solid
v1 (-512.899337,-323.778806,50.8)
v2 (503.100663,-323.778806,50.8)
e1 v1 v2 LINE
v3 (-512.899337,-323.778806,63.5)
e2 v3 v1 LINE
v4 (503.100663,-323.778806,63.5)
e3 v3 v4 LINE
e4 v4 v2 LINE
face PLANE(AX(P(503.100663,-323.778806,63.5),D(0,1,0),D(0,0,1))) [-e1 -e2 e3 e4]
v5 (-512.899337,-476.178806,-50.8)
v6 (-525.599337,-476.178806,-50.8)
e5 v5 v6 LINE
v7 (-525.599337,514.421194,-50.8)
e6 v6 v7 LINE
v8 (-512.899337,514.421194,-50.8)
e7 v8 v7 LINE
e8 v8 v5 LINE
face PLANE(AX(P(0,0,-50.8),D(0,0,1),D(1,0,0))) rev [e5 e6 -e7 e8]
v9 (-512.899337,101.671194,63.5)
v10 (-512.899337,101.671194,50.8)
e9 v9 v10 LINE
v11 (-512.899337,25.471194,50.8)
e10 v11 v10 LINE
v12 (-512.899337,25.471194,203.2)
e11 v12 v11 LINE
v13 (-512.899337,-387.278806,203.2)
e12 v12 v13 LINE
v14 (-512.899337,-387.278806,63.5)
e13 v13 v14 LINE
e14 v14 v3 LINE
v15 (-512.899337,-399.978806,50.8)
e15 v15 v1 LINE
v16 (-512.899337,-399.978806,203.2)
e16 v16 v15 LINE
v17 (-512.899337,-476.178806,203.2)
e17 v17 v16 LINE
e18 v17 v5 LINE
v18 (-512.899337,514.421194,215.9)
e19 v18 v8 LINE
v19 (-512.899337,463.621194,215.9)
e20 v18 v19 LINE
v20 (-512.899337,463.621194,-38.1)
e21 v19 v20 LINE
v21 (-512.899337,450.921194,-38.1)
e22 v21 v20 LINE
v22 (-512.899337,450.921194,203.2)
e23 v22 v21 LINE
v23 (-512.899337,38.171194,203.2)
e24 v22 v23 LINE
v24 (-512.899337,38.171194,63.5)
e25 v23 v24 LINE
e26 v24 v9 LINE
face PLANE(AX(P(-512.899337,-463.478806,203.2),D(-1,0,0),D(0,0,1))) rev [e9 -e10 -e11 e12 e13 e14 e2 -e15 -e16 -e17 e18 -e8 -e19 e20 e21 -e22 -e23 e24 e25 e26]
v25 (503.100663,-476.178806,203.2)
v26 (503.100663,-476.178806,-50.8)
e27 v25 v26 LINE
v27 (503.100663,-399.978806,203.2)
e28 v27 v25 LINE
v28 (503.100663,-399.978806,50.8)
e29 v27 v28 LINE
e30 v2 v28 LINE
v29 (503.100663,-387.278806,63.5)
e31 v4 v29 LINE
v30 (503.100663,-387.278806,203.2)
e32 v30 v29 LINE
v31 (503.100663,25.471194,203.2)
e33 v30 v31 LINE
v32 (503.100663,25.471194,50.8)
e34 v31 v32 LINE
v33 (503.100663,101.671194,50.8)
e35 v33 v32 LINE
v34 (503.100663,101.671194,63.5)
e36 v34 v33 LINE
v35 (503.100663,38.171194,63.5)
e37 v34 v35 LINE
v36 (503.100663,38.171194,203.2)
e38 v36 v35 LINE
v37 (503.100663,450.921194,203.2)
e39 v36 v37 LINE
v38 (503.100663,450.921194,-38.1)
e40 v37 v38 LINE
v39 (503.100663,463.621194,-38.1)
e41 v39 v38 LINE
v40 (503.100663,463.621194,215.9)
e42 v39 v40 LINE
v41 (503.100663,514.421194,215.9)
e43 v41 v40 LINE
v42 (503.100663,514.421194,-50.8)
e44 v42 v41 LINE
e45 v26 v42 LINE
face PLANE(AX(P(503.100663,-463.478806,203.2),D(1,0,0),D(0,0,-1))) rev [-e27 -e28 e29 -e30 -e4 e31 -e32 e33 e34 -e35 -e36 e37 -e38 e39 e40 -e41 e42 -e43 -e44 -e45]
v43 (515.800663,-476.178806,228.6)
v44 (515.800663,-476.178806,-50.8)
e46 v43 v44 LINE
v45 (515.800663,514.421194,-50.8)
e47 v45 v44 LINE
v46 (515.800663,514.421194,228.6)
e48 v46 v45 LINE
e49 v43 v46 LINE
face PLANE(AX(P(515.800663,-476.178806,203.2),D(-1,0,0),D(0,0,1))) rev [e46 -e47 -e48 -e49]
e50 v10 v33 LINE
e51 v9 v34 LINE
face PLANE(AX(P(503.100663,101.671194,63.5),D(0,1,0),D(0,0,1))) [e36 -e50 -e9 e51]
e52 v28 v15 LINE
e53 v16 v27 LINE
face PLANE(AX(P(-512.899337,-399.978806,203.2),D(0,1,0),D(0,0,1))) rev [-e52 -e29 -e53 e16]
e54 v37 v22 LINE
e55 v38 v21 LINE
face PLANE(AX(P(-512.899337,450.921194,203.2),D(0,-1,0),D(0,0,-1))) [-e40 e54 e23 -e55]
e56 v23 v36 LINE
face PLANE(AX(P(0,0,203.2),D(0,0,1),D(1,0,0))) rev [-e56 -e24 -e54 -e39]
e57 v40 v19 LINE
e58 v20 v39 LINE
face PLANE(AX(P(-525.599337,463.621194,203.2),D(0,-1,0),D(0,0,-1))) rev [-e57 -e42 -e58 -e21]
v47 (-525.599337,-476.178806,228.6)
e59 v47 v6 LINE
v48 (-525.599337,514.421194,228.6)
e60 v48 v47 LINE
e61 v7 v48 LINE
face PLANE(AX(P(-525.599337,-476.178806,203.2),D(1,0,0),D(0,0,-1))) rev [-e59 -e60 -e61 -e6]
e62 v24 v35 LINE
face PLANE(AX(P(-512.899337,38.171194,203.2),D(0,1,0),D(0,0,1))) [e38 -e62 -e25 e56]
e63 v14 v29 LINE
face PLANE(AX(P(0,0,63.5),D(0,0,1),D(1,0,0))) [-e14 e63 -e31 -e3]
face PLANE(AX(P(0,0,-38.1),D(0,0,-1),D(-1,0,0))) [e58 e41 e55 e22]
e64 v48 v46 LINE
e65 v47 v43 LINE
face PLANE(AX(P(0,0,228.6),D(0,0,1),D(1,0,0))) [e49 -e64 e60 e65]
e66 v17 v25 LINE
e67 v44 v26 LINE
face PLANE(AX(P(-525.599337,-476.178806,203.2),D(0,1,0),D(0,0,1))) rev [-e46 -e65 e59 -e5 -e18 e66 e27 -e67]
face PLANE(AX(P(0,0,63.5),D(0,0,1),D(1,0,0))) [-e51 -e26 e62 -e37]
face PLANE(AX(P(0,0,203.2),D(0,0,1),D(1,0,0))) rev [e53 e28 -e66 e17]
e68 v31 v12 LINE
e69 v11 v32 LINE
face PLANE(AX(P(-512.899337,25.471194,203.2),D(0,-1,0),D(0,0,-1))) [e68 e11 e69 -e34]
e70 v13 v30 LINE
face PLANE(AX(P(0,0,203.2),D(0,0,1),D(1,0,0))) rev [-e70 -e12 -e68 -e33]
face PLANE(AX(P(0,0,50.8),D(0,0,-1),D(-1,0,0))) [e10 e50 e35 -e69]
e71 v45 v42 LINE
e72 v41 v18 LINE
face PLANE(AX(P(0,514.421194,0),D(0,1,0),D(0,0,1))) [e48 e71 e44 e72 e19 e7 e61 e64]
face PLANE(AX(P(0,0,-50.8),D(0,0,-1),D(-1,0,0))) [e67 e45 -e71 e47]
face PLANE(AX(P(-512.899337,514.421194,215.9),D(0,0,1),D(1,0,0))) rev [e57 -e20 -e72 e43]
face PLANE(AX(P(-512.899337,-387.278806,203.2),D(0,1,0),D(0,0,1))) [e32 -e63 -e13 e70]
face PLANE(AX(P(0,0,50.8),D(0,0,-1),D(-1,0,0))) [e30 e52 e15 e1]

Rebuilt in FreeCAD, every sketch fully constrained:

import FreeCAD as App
import Part
import Sketcher

V = App.Vector
Q = App.Units.Quantity

doc = App.newDocument("Part")
body = doc.addObject("PartDesign::Body", "Body")

# Sketch on XY plane
sketch1 = body.newObject("Sketcher::SketchObject", "Sketch")
sketch1.AttachmentSupport = (doc.getObject("XY_Plane"), [""])
sketch1.MapMode = "FlatFace"
sketch1.addGeometry([
    Part.LineSegment(V(-513, -400, 0), V(503, -400, 0)),  # 0
    Part.LineSegment(V(503, -400, 0), V(503, -476, 0)),  # 1
    Part.LineSegment(V(503, -476, 0), V(516, -476, 0)),  # 2
    Part.LineSegment(V(516, -476, 0), V(516, 464, 0)),  # 3
    Part.LineSegment(V(516, 464, 0), V(-526, 464, 0)),  # 4
    Part.LineSegment(V(-526, 464, 0), V(-526, -476, 0)),  # 5
    Part.LineSegment(V(-526, -476, 0), V(-513, -476, 0)),  # 6
    Part.LineSegment(V(-513, -476, 0), V(-513, -400, 0)),  # 7
    Part.LineSegment(V(503, -387, 0), V(-513, -387, 0)),  # 8
    Part.LineSegment(V(-513, -387, 0), V(-513, 25, 0)),  # 9
    Part.LineSegment(V(-513, 25, 0), V(503, 25, 0)),  # 10
    Part.LineSegment(V(503, 25, 0), V(503, -387, 0)),  # 11
    Part.LineSegment(V(503, 38, 0), V(-513, 38, 0)),  # 12
    Part.LineSegment(V(-513, 38, 0), V(-513, 451, 0)),  # 13
    Part.LineSegment(V(-513, 451, 0), V(503, 451, 0)),  # 14
    Part.LineSegment(V(503, 451, 0), V(503, 38, 0)),  # 15
], False)
sketch1.addConstraint([
    Sketcher.Constraint("Coincident", 0, 2, 1, 1),
    Sketcher.Constraint("Coincident", 1, 2, 2, 1),
    Sketcher.Constraint("Coincident", 2, 2, 3, 1),
    Sketcher.Constraint("Coincident", 3, 2, 4, 1),
    Sketcher.Constraint("Coincident", 4, 2, 5, 1),
    Sketcher.Constraint("Coincident", 5, 2, 6, 1),
    Sketcher.Constraint("Coincident", 6, 2, 7, 1),
    Sketcher.Constraint("Coincident", 7, 2, 0, 1),
    Sketcher.Constraint("Coincident", 8, 2, 9, 1),
    Sketcher.Constraint("Coincident", 9, 2, 10, 1),
    Sketcher.Constraint("Coincident", 10, 2, 11, 1),
    Sketcher.Constraint("Coincident", 11, 2, 8, 1),
    Sketcher.Constraint("Coincident", 12, 2, 13, 1),
    Sketcher.Constraint("Coincident", 13, 2, 14, 1),
    Sketcher.Constraint("Coincident", 14, 2, 15, 1),
    Sketcher.Constraint("Coincident", 15, 2, 12, 1),
    Sketcher.Constraint("Horizontal", 0),
    Sketcher.Constraint("Vertical", 1),
    Sketcher.Constraint("Horizontal", 2),
    Sketcher.Constraint("Vertical", 3),
    Sketcher.Constraint("Horizontal", 4),
    Sketcher.Constraint("Vertical", 5),
    Sketcher.Constraint("Horizontal", 6),
    Sketcher.Constraint("Vertical", 7),
    Sketcher.Constraint("Horizontal", 8),
    Sketcher.Constraint("Vertical", 9),
    Sketcher.Constraint("Horizontal", 10),
    Sketcher.Constraint("Vertical", 11),
    Sketcher.Constraint("Horizontal", 12),
    Sketcher.Constraint("Vertical", 13),
    Sketcher.Constraint("Horizontal", 14),
    Sketcher.Constraint("Vertical", 15),
    Sketcher.Constraint("Horizontal", 2, 2, 5, 2),
    Sketcher.Constraint("Vertical", 7, 2, 8, 2),
    Sketcher.Constraint("Vertical", 1, 2, 10, 2),
    Sketcher.Constraint("Vertical", 9, 2, 12, 2),
    Sketcher.Constraint("Vertical", 11, 2, 14, 2),
    Sketcher.Constraint("Equal", 2, 6),
    Sketcher.Constraint("Equal", 11, 13),
    Sketcher.Constraint("DistanceX", 0, 1, 0, 2, Q("40 in")),
    Sketcher.Constraint("DistanceX", 4, 2, 4, 1, Q("41 in")),
    Sketcher.Constraint("DistanceY", 1, 2, 1, 1, Q("3 in")),
    Sketcher.Constraint("DistanceY", 3, 1, 3, 2, Q("37 in")),
    Sketcher.Constraint("DistanceY", 8, 2, 13, 2, Q("33 in")),
    Sketcher.Constraint("DistanceY", 9, 1, 9, 2, Q("16.25 in")),
    Sketcher.Constraint("DistanceY", 7, 2, 8, 2, Q("0.5 in")),
    Sketcher.Constraint("DistanceX", -1, 1, 0, 2, Q("503.100663 mm")),
    Sketcher.Constraint("DistanceY", 0, 2, -1, 1, Q("399.978806 mm")),
])
pad1 = body.newObject("PartDesign::Pad", "Pad")
pad1.Profile = sketch1
pad1.Length = Q("8 in")

# Sketch on XY plane
sketch2 = body.newObject("Sketcher::SketchObject", "Sketch001")
sketch2.AttachmentSupport = (doc.getObject("XY_Plane"), [""])
sketch2.MapMode = "FlatFace"
sketch2.AttachmentOffset = App.Placement(V(0, 0, 8 * 25.4), App.Rotation())
sketch2.addGeometry([
    Part.LineSegment(V(-526, 464, 0), V(-526, -476, 0)),
    Part.LineSegment(V(-526, -476, 0), V(516, -476, 0)),
    Part.LineSegment(V(516, -476, 0), V(516, 464, 0)),
    Part.LineSegment(V(516, 464, 0), V(-526, 464, 0)),
], False)
sketch2.addConstraint([
    Sketcher.Constraint("Coincident", 0, 2, 1, 1),
    Sketcher.Constraint("Coincident", 1, 2, 2, 1),
    Sketcher.Constraint("Coincident", 2, 2, 3, 1),
    Sketcher.Constraint("Coincident", 3, 2, 0, 1),
    Sketcher.Constraint("Vertical", 0),
    Sketcher.Constraint("Horizontal", 1),
    Sketcher.Constraint("Vertical", 2),
    Sketcher.Constraint("Horizontal", 3),
    Sketcher.Constraint("DistanceX", 1, 1, 1, 2, Q("41 in")),
    Sketcher.Constraint("DistanceY", 0, 2, 0, 1, Q("37 in")),
    Sketcher.Constraint("DistanceX", 0, 2, -1, 1, Q("525.599337 mm")),
    Sketcher.Constraint("DistanceY", 0, 2, -1, 1, Q("476.178806 mm")),
])
pad2 = body.newObject("PartDesign::Pad", "Pad001")
pad2.Profile = sketch2
pad2.Length = Q("1 in")

# Sketch on XY plane
sketch3 = body.newObject("Sketcher::SketchObject", "Sketch002")
sketch3.AttachmentSupport = (doc.getObject("XY_Plane"), [""])
sketch3.MapMode = "FlatFace"
sketch3.addGeometry([
    Part.LineSegment(V(516, 464, 0), V(516, -476, 0)),
    Part.LineSegment(V(516, -476, 0), V(503, -476, 0)),
    Part.LineSegment(V(503, -476, 0), V(503, 464, 0)),
    Part.LineSegment(V(503, 464, 0), V(516, 464, 0)),
], False)
sketch3.addConstraint([
    Sketcher.Constraint("Coincident", 0, 2, 1, 1),
    Sketcher.Constraint("Coincident", 1, 2, 2, 1),
    Sketcher.Constraint("Coincident", 2, 2, 3, 1),
    Sketcher.Constraint("Coincident", 3, 2, 0, 1),
    Sketcher.Constraint("Vertical", 0),
    Sketcher.Constraint("Horizontal", 1),
    Sketcher.Constraint("Vertical", 2),
    Sketcher.Constraint("Horizontal", 3),
    Sketcher.Constraint("DistanceY", 0, 2, 0, 1, Q("37 in")),
    Sketcher.Constraint("DistanceX", 1, 2, 1, 1, Q("0.5 in")),
    Sketcher.Constraint("DistanceX", -1, 1, 0, 2, Q("515.800663 mm")),
    Sketcher.Constraint("DistanceY", 0, 2, -1, 1, Q("476.178806 mm")),
])
pad3 = body.newObject("PartDesign::Pad", "Pad002")
pad3.Profile = sketch3
pad3.Length = Q("2 in")
pad3.Reversed = True

# Sketch on XY plane
sketch4 = body.newObject("Sketcher::SketchObject", "Sketch003")
sketch4.AttachmentSupport = (doc.getObject("XY_Plane"), [""])
sketch4.MapMode = "FlatFace"
sketch4.addGeometry([
    Part.LineSegment(V(-513, 464, 0), V(-513, -476, 0)),
    Part.LineSegment(V(-513, -476, 0), V(-526, -476, 0)),
    Part.LineSegment(V(-526, -476, 0), V(-526, 464, 0)),
    Part.LineSegment(V(-526, 464, 0), V(-513, 464, 0)),
], False)
sketch4.addConstraint([
    Sketcher.Constraint("Coincident", 0, 2, 1, 1),
    Sketcher.Constraint("Coincident", 1, 2, 2, 1),
    Sketcher.Constraint("Coincident", 2, 2, 3, 1),
    Sketcher.Constraint("Coincident", 3, 2, 0, 1),
    Sketcher.Constraint("Vertical", 0),
    Sketcher.Constraint("Horizontal", 1),
    Sketcher.Constraint("Vertical", 2),
    Sketcher.Constraint("Horizontal", 3),
    Sketcher.Constraint("DistanceY", 0, 2, 0, 1, Q("37 in")),
    Sketcher.Constraint("DistanceX", 1, 2, 1, 1, Q("0.5 in")),
    Sketcher.Constraint("DistanceX", 0, 2, -1, 1, Q("512.899337 mm")),
    Sketcher.Constraint("DistanceY", 0, 2, -1, 1, Q("476.178806 mm")),
])
pad4 = body.newObject("PartDesign::Pad", "Pad003")
pad4.Profile = sketch4
pad4.Length = Q("2 in")
pad4.Reversed = True

# Sketch on XZ plane
sketch5 = body.newObject("Sketcher::SketchObject", "Sketch004")
sketch5.AttachmentSupport = (doc.getObject("XZ_Plane"), [""])
sketch5.MapMode = "FlatFace"
sketch5.AttachmentOffset = App.Placement(V(0, 0, -463.621194), App.Rotation())
sketch5.addGeometry([
    Part.LineSegment(V(-513, 216, 0), V(-513, -51, 0)),  # 0
    Part.LineSegment(V(-513, -51, 0), V(-526, -51, 0)),  # 1
    Part.LineSegment(V(-526, -51, 0), V(-526, 229, 0)),  # 2
    Part.LineSegment(V(-526, 229, 0), V(516, 229, 0)),  # 3
    Part.LineSegment(V(516, 229, 0), V(516, -51, 0)),  # 4
    Part.LineSegment(V(516, -51, 0), V(503, -51, 0)),  # 5
    Part.LineSegment(V(503, -51, 0), V(503, 216, 0)),  # 6
    Part.LineSegment(V(503, 216, 0), V(-513, 216, 0)),  # 7
], False)
sketch5.addConstraint([
    Sketcher.Constraint("Coincident", 0, 2, 1, 1),
    Sketcher.Constraint("Coincident", 1, 2, 2, 1),
    Sketcher.Constraint("Coincident", 2, 2, 3, 1),
    Sketcher.Constraint("Coincident", 3, 2, 4, 1),
    Sketcher.Constraint("Coincident", 4, 2, 5, 1),
    Sketcher.Constraint("Coincident", 5, 2, 6, 1),
    Sketcher.Constraint("Coincident", 6, 2, 7, 1),
    Sketcher.Constraint("Coincident", 7, 2, 0, 1),
    Sketcher.Constraint("Vertical", 0),
    Sketcher.Constraint("Horizontal", 1),
    Sketcher.Constraint("Vertical", 2),
    Sketcher.Constraint("Horizontal", 3),
    Sketcher.Constraint("Vertical", 4),
    Sketcher.Constraint("Horizontal", 5),
    Sketcher.Constraint("Vertical", 6),
    Sketcher.Constraint("Horizontal", 7),
    Sketcher.Constraint("Horizontal", 1, 2, 4, 2),
    Sketcher.Constraint("Equal", 1, 5),
    Sketcher.Constraint("DistanceX", 3, 1, 3, 2, Q("41 in")),
    Sketcher.Constraint("DistanceX", 7, 2, 7, 1, Q("40 in")),
    Sketcher.Constraint("DistanceY", 2, 1, 2, 2, Q("11 in")),
    Sketcher.Constraint("DistanceY", 0, 2, 0, 1, Q("10.5 in")),
    Sketcher.Constraint("DistanceY", 0, 2, -1, 1, Q("2 in")),
    Sketcher.Constraint("DistanceX", 0, 2, -1, 1, Q("512.899337 mm")),
])
pad5 = body.newObject("PartDesign::Pad", "Pad004")
pad5.Profile = sketch5
pad5.Length = Q("2 in")
pad5.Reversed = True

# Sketch on XY plane
sketch6 = body.newObject("Sketcher::SketchObject", "Sketch005")
sketch6.AttachmentSupport = (doc.getObject("XY_Plane"), [""])
sketch6.MapMode = "FlatFace"
sketch6.addGeometry([
    Part.LineSegment(V(503, 38, 0), V(503, -476, 0)),
    Part.LineSegment(V(503, -476, 0), V(-513, -476, 0)),
    Part.LineSegment(V(-513, -476, 0), V(-513, 38, 0)),
    Part.LineSegment(V(-513, 38, 0), V(503, 38, 0)),
], False)
sketch6.addConstraint([
    Sketcher.Constraint("Coincident", 0, 2, 1, 1),
    Sketcher.Constraint("Coincident", 1, 2, 2, 1),
    Sketcher.Constraint("Coincident", 2, 2, 3, 1),
    Sketcher.Constraint("Coincident", 3, 2, 0, 1),
    Sketcher.Constraint("Vertical", 0),
    Sketcher.Constraint("Horizontal", 1),
    Sketcher.Constraint("Vertical", 2),
    Sketcher.Constraint("Horizontal", 3),
    Sketcher.Constraint("DistanceX", 1, 2, 1, 1, Q("40 in")),
    Sketcher.Constraint("DistanceY", 0, 2, 0, 1, Q("20.25 in")),
    Sketcher.Constraint("DistanceX", -1, 1, 0, 2, Q("503.100663 mm")),
    Sketcher.Constraint("DistanceY", 0, 2, -1, 1, Q("476.178806 mm")),
])
pocket1 = body.newObject("PartDesign::Pocket", "Pocket")
pocket1.Profile = sketch6
pocket1.Length = Q("2 in")
pocket1.Reversed = True

# Sketch on XY plane
sketch7 = body.newObject("Sketcher::SketchObject", "Sketch006")
sketch7.AttachmentSupport = (doc.getObject("XY_Plane"), [""])
sketch7.MapMode = "FlatFace"
sketch7.addGeometry([
    Part.LineSegment(V(503, 464, 0), V(503, 451, 0)),
    Part.LineSegment(V(503, 451, 0), V(-513, 451, 0)),
    Part.LineSegment(V(-513, 451, 0), V(-513, 464, 0)),
    Part.LineSegment(V(-513, 464, 0), V(503, 464, 0)),
], False)
sketch7.addConstraint([
    Sketcher.Constraint("Coincident", 0, 2, 1, 1),
    Sketcher.Constraint("Coincident", 1, 2, 2, 1),
    Sketcher.Constraint("Coincident", 2, 2, 3, 1),
    Sketcher.Constraint("Coincident", 3, 2, 0, 1),
    Sketcher.Constraint("Vertical", 0),
    Sketcher.Constraint("Horizontal", 1),
    Sketcher.Constraint("Vertical", 2),
    Sketcher.Constraint("Horizontal", 3),
    Sketcher.Constraint("DistanceX", 1, 2, 1, 1, Q("40 in")),
    Sketcher.Constraint("DistanceY", 0, 2, 0, 1, Q("0.5 in")),
    Sketcher.Constraint("DistanceX", -1, 1, 0, 2, Q("503.100663 mm")),
    Sketcher.Constraint("DistanceY", -1, 1, 0, 2, Q("450.921194 mm")),
])
pad6 = body.newObject("PartDesign::Pad", "Pad005")
pad6.Profile = sketch7
pad6.Length = Q("1.5 in")
pad6.Reversed = True

# Sketch on XY plane
sketch8 = body.newObject("Sketcher::SketchObject", "Sketch007")
sketch8.AttachmentSupport = (doc.getObject("XY_Plane"), [""])
sketch8.MapMode = "FlatFace"
sketch8.AttachmentOffset = App.Placement(V(0, 0, 2 * 25.4), App.Rotation())
sketch8.addGeometry([
    Part.LineSegment(V(503, 102, 0), V(503, 25, 0)),  # 0
    Part.LineSegment(V(503, 25, 0), V(-513, 25, 0)),  # 1
    Part.LineSegment(V(-513, 25, 0), V(-513, 102, 0)),  # 2
    Part.LineSegment(V(-513, 102, 0), V(503, 102, 0)),  # 3
    Part.LineSegment(V(503, -324, 0), V(503, -400, 0)),  # 4
    Part.LineSegment(V(503, -400, 0), V(-513, -400, 0)),  # 5
    Part.LineSegment(V(-513, -400, 0), V(-513, -324, 0)),  # 6
    Part.LineSegment(V(-513, -324, 0), V(503, -324, 0)),  # 7
], False)
sketch8.addConstraint([
    Sketcher.Constraint("Coincident", 0, 2, 1, 1),
    Sketcher.Constraint("Coincident", 1, 2, 2, 1),
    Sketcher.Constraint("Coincident", 2, 2, 3, 1),
    Sketcher.Constraint("Coincident", 3, 2, 0, 1),
    Sketcher.Constraint("Coincident", 4, 2, 5, 1),
    Sketcher.Constraint("Coincident", 5, 2, 6, 1),
    Sketcher.Constraint("Coincident", 6, 2, 7, 1),
    Sketcher.Constraint("Coincident", 7, 2, 4, 1),
    Sketcher.Constraint("Vertical", 0),
    Sketcher.Constraint("Horizontal", 1),
    Sketcher.Constraint("Vertical", 2),
    Sketcher.Constraint("Horizontal", 3),
    Sketcher.Constraint("Vertical", 4),
    Sketcher.Constraint("Horizontal", 5),
    Sketcher.Constraint("Vertical", 6),
    Sketcher.Constraint("Horizontal", 7),
    Sketcher.Constraint("Vertical", 3, 2, 4, 2),
    Sketcher.Constraint("Vertical", 2, 2, 5, 2),
    Sketcher.Constraint("Equal", 2, 4),
    Sketcher.Constraint("DistanceX", 1, 2, 1, 1, Q("40 in")),
    Sketcher.Constraint("DistanceY", 0, 2, 0, 1, Q("3 in")),
    Sketcher.Constraint("DistanceY", 4, 2, 0, 2, Q("16.75 in")),
    Sketcher.Constraint("DistanceX", -1, 1, 0, 2, Q("503.100663 mm")),
    Sketcher.Constraint("DistanceY", -1, 1, 0, 2, Q("25.471194 mm")),
])
pad7 = body.newObject("PartDesign::Pad", "Pad006")
pad7.Profile = sketch8
pad7.Length = Q("0.5 in")

doc.recompute()
